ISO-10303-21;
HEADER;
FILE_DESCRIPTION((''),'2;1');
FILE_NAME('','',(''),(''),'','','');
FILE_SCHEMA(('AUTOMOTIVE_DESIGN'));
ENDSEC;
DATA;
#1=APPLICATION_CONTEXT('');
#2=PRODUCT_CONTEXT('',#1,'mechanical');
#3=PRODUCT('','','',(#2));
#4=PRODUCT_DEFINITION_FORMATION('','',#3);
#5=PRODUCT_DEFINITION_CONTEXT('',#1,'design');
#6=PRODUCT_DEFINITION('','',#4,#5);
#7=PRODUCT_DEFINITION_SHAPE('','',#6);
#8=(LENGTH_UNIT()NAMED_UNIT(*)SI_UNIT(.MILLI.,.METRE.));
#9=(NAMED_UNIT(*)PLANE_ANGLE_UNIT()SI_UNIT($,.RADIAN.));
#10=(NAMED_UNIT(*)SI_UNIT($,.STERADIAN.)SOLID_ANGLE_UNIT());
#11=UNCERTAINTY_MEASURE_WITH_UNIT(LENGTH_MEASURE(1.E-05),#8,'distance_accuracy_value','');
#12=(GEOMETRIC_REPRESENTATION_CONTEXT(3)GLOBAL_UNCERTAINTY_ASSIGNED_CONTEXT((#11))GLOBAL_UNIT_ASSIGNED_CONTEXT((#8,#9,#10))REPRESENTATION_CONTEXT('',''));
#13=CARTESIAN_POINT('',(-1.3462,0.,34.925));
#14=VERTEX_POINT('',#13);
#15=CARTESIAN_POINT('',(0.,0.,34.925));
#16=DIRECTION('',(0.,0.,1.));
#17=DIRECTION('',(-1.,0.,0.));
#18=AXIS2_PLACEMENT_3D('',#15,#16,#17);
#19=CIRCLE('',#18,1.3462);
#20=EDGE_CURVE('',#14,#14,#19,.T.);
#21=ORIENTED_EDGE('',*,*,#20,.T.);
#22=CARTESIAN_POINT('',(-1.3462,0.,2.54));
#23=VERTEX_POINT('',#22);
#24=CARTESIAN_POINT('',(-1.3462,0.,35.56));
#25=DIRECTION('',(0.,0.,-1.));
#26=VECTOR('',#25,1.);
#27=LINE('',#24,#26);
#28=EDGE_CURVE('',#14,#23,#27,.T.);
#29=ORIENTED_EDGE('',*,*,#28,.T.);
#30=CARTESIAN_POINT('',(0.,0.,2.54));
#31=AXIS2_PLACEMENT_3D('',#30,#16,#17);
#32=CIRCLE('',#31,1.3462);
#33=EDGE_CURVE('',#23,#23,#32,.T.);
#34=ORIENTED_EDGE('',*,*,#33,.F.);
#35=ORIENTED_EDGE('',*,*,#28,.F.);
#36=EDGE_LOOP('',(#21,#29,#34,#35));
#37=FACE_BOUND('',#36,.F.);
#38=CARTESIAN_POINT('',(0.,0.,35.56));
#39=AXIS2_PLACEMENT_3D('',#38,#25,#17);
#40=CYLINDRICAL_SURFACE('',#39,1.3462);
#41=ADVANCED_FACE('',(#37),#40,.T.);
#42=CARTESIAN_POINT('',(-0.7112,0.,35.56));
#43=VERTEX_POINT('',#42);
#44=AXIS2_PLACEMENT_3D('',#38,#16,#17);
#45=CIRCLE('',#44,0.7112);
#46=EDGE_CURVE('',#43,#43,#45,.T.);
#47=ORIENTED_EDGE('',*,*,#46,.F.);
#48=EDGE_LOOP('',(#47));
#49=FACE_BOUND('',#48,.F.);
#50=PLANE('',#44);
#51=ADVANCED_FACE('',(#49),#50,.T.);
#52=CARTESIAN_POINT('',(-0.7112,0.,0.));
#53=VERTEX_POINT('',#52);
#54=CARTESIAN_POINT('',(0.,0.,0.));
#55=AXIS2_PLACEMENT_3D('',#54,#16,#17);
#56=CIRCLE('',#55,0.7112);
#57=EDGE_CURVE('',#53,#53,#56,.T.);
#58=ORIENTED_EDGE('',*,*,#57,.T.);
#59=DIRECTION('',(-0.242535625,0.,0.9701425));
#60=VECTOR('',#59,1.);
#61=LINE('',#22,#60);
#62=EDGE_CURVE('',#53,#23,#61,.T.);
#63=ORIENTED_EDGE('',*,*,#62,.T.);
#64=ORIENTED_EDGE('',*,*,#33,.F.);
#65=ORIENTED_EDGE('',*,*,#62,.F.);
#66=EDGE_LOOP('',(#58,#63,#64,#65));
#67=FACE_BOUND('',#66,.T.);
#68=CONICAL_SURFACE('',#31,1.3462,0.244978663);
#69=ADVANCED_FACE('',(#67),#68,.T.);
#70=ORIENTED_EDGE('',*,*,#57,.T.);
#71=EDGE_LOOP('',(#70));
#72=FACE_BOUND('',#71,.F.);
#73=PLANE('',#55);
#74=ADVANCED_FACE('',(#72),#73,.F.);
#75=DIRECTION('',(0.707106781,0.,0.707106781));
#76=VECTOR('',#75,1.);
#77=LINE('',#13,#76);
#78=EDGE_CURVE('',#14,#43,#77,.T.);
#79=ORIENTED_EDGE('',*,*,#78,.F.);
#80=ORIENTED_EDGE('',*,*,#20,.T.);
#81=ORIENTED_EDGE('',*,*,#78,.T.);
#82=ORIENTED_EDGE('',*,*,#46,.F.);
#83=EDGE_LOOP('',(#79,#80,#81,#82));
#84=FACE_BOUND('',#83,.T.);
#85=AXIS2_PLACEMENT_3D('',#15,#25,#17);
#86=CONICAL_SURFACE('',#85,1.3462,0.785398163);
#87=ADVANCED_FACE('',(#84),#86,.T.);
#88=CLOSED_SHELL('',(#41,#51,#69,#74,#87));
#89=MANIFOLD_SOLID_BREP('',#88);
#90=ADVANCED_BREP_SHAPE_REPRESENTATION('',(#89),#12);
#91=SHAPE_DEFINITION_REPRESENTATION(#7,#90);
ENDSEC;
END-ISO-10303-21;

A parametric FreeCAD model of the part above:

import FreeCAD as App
import Part
import Sketcher
from FreeCAD import Vector
Q = App.Units.Quantity


def edges_at(feature, points):
    """Names of the edges that pass closest to the given points."""
    edges = feature.Shape.Edges
    near = lambda p: min(range(len(edges)), key=lambda i: edges[i].distToShape(Part.Vertex(*p))[0])
    return sorted({f"Edge{near(p) + 1}" for p in points})

doc = App.newDocument("Part")
body = doc.addObject("PartDesign::Body", "Body")

# Sketch on XZ plane
sketch1 = body.newObject("Sketcher::SketchObject", "Sketch")
sketch1.AttachmentSupport = (doc.getObject("XZ_Plane"), [""])
sketch1.MapMode = "FlatFace"
sketch1.addGeometry(Part.LineSegment(Vector(-1.3462, 0, 0), Vector(0, 0, 0)), False)
sketch1.addGeometry(Part.LineSegment(Vector(0, 0, 0), Vector(0, 35.56, 0)), False)
sketch1.addGeometry(Part.LineSegment(Vector(0, 35.56, 0), Vector(-1.3462, 35.56, 0)), False)
sketch1.addGeometry(Part.LineSegment(Vector(-1.3462, 35.56, 0), Vector(-1.3462, 0, 0)), False)
sketch1.addConstraint(Sketcher.Constraint("Coincident", 0, 2, 1, 1))
sketch1.addConstraint(Sketcher.Constraint("Coincident", 1, 2, 2, 1))
sketch1.addConstraint(Sketcher.Constraint("Coincident", 2, 2, 3, 1))
sketch1.addConstraint(Sketcher.Constraint("Coincident", 3, 2, 0, 1))
sketch1.addConstraint(Sketcher.Constraint("Horizontal", 0))
sketch1.addConstraint(Sketcher.Constraint("Vertical", 1))
sketch1.addConstraint(Sketcher.Constraint("Horizontal", 2))
sketch1.addConstraint(Sketcher.Constraint("Vertical", 3))
sketch1.addConstraint(Sketcher.Constraint("Coincident", 0, 2, -1, 1))
sketch1.addConstraint(Sketcher.Constraint("DistanceY", 1, 1, 1, 2, Q("1.4 in")))
sketch1.addConstraint(Sketcher.Constraint("DistanceX", 0, 1, 0, 2, Q("0.053 in")))
revolution = body.newObject("PartDesign::Revolution", "Revolution")
revolution.Profile = sketch1
revolution.ReferenceAxis = (sketch1, ["V_Axis"])
revolution.Angle = 360
doc.recompute()

chamfer = body.newObject("PartDesign::Chamfer", "Chamfer")
chamfer.Base = (revolution, edges_at(revolution, [(1.346, 0, 0)]))
chamfer.ChamferType = "Two distances"
chamfer.Size = Q("0.025 in")
chamfer.Size2 = Q("0.1 in")
doc.recompute()

chamfer2 = body.newObject("PartDesign::Chamfer", "Chamfer001")
chamfer2.Base = (chamfer, edges_at(chamfer, [(1.346, 0, 35.56)]))
chamfer2.Size = Q("0.025 in")

doc.recompute()
